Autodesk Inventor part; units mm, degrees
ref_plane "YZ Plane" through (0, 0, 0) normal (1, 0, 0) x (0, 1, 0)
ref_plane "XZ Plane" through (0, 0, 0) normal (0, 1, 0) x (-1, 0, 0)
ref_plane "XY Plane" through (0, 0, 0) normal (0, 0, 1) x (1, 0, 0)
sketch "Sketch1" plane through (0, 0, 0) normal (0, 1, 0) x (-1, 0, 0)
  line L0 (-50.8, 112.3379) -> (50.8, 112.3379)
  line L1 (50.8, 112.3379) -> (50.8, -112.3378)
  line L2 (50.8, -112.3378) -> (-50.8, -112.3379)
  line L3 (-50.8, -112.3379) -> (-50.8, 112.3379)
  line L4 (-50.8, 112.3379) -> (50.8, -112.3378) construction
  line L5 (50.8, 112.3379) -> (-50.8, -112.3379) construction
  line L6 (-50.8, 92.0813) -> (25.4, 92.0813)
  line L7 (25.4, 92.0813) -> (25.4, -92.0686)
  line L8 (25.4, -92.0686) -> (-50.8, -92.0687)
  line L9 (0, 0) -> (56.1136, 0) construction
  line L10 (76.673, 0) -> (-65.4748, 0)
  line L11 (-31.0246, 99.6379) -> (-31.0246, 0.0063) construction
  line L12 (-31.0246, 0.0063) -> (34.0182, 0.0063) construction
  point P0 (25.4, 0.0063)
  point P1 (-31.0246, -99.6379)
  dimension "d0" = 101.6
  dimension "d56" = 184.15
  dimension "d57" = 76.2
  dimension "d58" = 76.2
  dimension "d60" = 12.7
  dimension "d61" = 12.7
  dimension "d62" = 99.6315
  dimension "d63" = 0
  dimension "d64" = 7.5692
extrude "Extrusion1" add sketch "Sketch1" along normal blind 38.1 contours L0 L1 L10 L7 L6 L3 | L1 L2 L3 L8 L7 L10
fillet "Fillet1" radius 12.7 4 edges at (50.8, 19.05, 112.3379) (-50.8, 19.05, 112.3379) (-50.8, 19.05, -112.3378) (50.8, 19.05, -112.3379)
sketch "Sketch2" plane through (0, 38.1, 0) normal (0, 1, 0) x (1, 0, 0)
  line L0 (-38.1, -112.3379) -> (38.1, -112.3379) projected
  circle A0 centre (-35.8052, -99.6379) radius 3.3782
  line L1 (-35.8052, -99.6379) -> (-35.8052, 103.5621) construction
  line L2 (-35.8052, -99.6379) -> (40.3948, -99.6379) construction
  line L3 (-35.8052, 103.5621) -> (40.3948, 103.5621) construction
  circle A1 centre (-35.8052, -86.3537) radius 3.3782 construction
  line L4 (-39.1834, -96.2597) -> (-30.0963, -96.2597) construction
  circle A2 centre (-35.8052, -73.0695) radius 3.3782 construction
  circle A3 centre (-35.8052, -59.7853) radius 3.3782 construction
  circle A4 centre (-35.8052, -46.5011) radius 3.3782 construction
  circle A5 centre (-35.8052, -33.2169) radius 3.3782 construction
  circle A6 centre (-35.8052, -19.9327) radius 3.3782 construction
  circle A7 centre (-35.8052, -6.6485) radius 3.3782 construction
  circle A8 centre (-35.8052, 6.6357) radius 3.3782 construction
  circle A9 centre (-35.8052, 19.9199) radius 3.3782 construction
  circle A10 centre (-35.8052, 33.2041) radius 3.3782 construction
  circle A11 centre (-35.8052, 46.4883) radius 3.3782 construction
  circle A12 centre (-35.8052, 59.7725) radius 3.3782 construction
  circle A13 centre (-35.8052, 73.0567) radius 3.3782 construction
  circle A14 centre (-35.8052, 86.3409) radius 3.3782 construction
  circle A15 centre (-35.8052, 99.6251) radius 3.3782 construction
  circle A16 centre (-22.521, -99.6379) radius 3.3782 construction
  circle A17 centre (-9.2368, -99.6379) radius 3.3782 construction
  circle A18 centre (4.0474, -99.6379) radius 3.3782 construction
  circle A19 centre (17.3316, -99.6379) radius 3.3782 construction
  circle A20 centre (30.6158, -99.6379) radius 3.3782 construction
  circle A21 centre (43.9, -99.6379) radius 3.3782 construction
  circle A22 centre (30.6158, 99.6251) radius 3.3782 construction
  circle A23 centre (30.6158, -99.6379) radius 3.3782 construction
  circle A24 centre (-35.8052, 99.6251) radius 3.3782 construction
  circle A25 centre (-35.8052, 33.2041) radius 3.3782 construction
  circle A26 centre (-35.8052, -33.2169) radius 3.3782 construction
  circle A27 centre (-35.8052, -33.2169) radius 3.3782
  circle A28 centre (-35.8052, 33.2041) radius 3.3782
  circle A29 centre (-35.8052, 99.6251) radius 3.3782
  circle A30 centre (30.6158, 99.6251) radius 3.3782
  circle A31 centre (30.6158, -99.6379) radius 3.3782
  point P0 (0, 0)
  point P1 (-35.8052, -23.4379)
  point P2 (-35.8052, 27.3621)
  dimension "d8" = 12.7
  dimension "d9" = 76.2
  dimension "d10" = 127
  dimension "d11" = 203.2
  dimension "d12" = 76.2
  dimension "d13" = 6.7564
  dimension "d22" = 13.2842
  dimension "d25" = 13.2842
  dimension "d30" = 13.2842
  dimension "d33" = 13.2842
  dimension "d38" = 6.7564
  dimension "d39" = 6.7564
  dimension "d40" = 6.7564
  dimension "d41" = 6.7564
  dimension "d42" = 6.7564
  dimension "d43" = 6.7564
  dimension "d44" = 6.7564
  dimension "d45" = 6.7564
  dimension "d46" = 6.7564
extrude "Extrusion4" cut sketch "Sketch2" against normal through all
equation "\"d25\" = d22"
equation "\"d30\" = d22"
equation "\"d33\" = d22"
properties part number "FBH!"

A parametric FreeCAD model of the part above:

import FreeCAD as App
import Part
import Sketcher
Q = App.Units.Quantity


def edges_at(feature, points):
    """Names of the edges that pass closest to the given points."""
    edges = feature.Shape.Edges
    near = lambda p: min(range(len(edges)), key=lambda i: edges[i].distToShape(Part.Vertex(*p))[0])
    return sorted({f"Edge{near(p) + 1}" for p in points})


def add_polygon(sketch, points):
    """Adds a closed chain of lines whose ends are joined by coincident constraints."""
    first, n = sketch.GeometryCount, len(points)
    for a, b in zip(points, points[1:] + points[:1]):
        sketch.addGeometry(Part.LineSegment(App.Vector(*a, 0), App.Vector(*b, 0)), False)
    for i in range(n):
        sketch.addConstraint(Sketcher.Constraint("Coincident", first + i, 2, first + (i + 1) % n, 1))

doc = App.newDocument("Part")
params = doc.addObject("Spreadsheet::Sheet", "Params")
for row, (alias, value) in enumerate([
    ("sketch1_width", "4 in"),
    ("sketch1_width2", "3 in"),
    ("sketch1_height", "7.25 in"),
    ("sketch1_height2", "0.798 in"),
    ("pad1_length", "1.5 in"),
    ("fillet_radius", "0.5 in"),
    ("sketch2_diameter", "0.266 in"),
], start=1):
    params.set(f"A{row}", alias)
    params.set(f"B{row}", "=" + value)
    params.setAlias(f"B{row}", alias)

body = doc.addObject("PartDesign::Body", "Body")

# Sketch on XZ plane
sketch1 = body.newObject("Sketcher::SketchObject", "Sketch")
sketch1.AttachmentSupport = (doc.getObject("XZ_Plane"), [""])
sketch1.MapMode = "FlatFace"
add_polygon(sketch1, [(-51, 112), (51, 112), (51, 92), (-25, 92), (-25, -92), (51, -92), (51, -112), (-51, -112)])  # lines 0-7
sketch1.addConstraint([
    Sketcher.Constraint("Horizontal", 0),
    Sketcher.Constraint("Vertical", 1),
    Sketcher.Constraint("Horizontal", 2),
    Sketcher.Constraint("Vertical", 3),
    Sketcher.Constraint("Horizontal", 4),
    Sketcher.Constraint("Vertical", 5),
    Sketcher.Constraint("Horizontal", 6),
    Sketcher.Constraint("Vertical", 7),
    Sketcher.Constraint("Symmetric", 0, 2, 6, 2, -1, 1),
    Sketcher.Constraint("Vertical", 1, 2, 4, 2),
    Sketcher.Constraint("DistanceX", 0, 1, 0, 2, Q("4 in")),
    Sketcher.Constraint("DistanceX", 2, 2, 2, 1, Q("3 in")),
    Sketcher.Constraint("DistanceY", 3, 2, 3, 1, Q("7.25 in")),
    Sketcher.Constraint("DistanceY", 5, 2, 5, 1, Q("0.798 in")),
    Sketcher.Constraint("DistanceY", 1, 2, 1, 1, Q("0.7975 in")),
])
sketch1.setExpression("Constraints[18]", "Params.sketch1_width")
sketch1.setExpression("Constraints[19]", "Params.sketch1_width2")
sketch1.setExpression("Constraints[20]", "Params.sketch1_height")
sketch1.setExpression("Constraints[21]", "Params.sketch1_height2")
pad1 = body.newObject("PartDesign::Pad", "Pad")
pad1.Profile = sketch1
pad1.setExpression("Length", "Params.pad1_length")
pad1.Reversed = True
doc.recompute()

fillet = body.newObject("PartDesign::Fillet", "Fillet")
fillet.Base = (pad1, edges_at(pad1, [
    (50.8, 19.05, 112.338),
    (-50.8, 19.05, 112.338),
    (-50.8, 19.05, -112.338),
    (50.8, 19.05, -112.338),
]))
fillet.setExpression("Radius", "Params.fillet_radius")

# Sketch on XZ plane
sketch2 = body.newObject("Sketcher::SketchObject", "Sketch001")
sketch2.AttachmentSupport = (doc.getObject("XZ_Plane"), [""])
sketch2.MapMode = "FlatFace"
sketch2.AttachmentOffset = App.Placement(App.Vector(0, 0, -1.5 * 25.4), App.Rotation())
sketch2.addGeometry([
    Part.Circle(App.Vector(-35.8, 99.6, 0), App.Vector(0, 0, 1), 3.4),  # 0
    Part.Circle(App.Vector(-35.8, 33.2, 0), App.Vector(0, 0, 1), 3.4),  # 1
    Part.Circle(App.Vector(-35.8, -33.2, 0), App.Vector(0, 0, 1), 3.4),  # 2
    Part.Circle(App.Vector(-35.8, -99.6, 0), App.Vector(0, 0, 1), 3.4),  # 3
    Part.Circle(App.Vector(30.6, -99.6, 0), App.Vector(0, 0, 1), 3.4),  # 4
    Part.Circle(App.Vector(30.6, 99.6, 0), App.Vector(0, 0, 1), 3.4),  # 5
], False)
sketch2.addConstraint([
    Sketcher.Constraint("Equal", 0, 1),
    Sketcher.Constraint("Equal", 1, 2),
    Sketcher.Constraint("Equal", 2, 3),
    Sketcher.Constraint("Equal", 3, 4),
    Sketcher.Constraint("Equal", 4, 5),
    Sketcher.Constraint("Horizontal", 3, 3, 4, 3),
    Sketcher.Constraint("Horizontal", 0, 3, 5, 3),
    Sketcher.Constraint("Vertical", 0, 3, 1, 3),
    Sketcher.Constraint("Vertical", 1, 3, 2, 3),
    Sketcher.Constraint("Vertical", 2, 3, 3, 3),
    Sketcher.Constraint("Vertical", 4, 3, 5, 3),
    Sketcher.Constraint("Diameter", 0, Q("0.266 in")),
    Sketcher.Constraint("DistanceY", 2, 3, 0, 3, Q("5.23 in")),
    Sketcher.Constraint("DistanceY", 3, 3, 1, 3, Q("5.23 in")),
    Sketcher.Constraint("DistanceY", 1, 3, 0, 3, Q("2.615 in")),
    Sketcher.Constraint("DistanceX", 3, 3, 4, 3, Q("2.615 in")),
    Sketcher.Constraint("DistanceX", 0, 3, -1, 1, 35.8052),
    Sketcher.Constraint("DistanceY", -1, 1, 0, 3, 99.638),
])
sketch2.setExpression("Constraints[11]", "Params.sketch2_diameter")
pocket1 = body.newObject("PartDesign::Pocket", "Pocket")
pocket1.Profile = sketch2
pocket1.Type = "ThroughAll"
pocket1.Reversed = True

doc.recompute()
